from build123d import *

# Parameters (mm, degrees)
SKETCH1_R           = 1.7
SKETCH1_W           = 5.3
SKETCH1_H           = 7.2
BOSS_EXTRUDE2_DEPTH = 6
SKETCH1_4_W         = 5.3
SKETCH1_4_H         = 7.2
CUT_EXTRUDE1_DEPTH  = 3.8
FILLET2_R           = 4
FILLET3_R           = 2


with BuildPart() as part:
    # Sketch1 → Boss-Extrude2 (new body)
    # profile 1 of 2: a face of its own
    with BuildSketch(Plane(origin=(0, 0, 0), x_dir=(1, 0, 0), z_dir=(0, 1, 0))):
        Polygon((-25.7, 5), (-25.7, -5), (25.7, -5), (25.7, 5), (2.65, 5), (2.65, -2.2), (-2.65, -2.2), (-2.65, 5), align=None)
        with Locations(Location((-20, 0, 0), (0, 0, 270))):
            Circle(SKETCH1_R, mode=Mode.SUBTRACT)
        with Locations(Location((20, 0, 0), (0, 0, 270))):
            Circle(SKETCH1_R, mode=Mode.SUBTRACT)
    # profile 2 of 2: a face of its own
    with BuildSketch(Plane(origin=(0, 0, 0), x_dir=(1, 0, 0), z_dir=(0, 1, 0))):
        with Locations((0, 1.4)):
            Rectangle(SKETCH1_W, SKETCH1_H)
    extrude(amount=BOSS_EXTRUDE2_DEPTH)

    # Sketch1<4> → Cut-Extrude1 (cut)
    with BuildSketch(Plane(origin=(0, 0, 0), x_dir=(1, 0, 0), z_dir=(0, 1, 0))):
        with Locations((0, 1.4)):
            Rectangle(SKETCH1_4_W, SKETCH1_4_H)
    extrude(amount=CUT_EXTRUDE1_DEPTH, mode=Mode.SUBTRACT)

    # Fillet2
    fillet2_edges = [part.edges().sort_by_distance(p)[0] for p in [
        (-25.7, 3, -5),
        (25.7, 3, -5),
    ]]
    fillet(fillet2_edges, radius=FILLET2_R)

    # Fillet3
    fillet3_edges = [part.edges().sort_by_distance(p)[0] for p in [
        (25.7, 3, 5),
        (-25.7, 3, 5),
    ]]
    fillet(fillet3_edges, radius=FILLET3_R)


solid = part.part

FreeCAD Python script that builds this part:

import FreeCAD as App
import Part
import Sketcher


def edges_at(feature, points):
    """Names of the edges that pass closest to the given points."""
    edges = feature.Shape.Edges
    near = lambda p: min(range(len(edges)), key=lambda i: edges[i].distToShape(Part.Vertex(*p))[0])
    return sorted({f"Edge{near(p) + 1}" for p in points})


def add_polygon(sketch, points):
    """Adds a closed chain of lines whose ends are joined by coincident constraints."""
    first, n = sketch.GeometryCount, len(points)
    for a, b in zip(points, points[1:] + points[:1]):
        sketch.addGeometry(Part.LineSegment(App.Vector(*a, 0), App.Vector(*b, 0)), False)
    for i in range(n):
        sketch.addConstraint(Sketcher.Constraint("Coincident", first + i, 2, first + (i + 1) % n, 1))

doc = App.newDocument("Part")
params = doc.addObject("Spreadsheet::Sheet", "Params")
for row, (alias, value) in enumerate([
    ("sketch1_diameter", "3.4 mm"),
    ("sketch1_height", "10 mm"),
    ("sketch1_width", "51.4 mm"),
    ("pad1_length", "6 mm"),
    ("sketch2_width", "5.3 mm"),
    ("sketch2_height", "7.2 mm"),
    ("pocket1_length", "3.8 mm"),
    ("fillet_radius", "4 mm"),
    ("fillet2_radius", "2 mm"),
], start=1):
    params.set(f"A{row}", alias)
    params.set(f"B{row}", "=" + value)
    params.setAlias(f"B{row}", alias)

body = doc.addObject("PartDesign::Body", "Body")

sketch1 = body.newObject("Sketcher::SketchObject", "Sketch")
sketch1.AttachmentSupport = (doc.getObject("XZ_Plane"), [""])
sketch1.MapMode = "FlatFace"
add_polygon(sketch1, [(-25.7, -5), (-25.7, 5), (25.7, 5), (25.7, -5)])
sketch1.addGeometry(Part.Circle(App.Vector(-20, 0, 0), App.Vector(0, 0, 1), 1.7), False)
sketch1.addGeometry(Part.Circle(App.Vector(20, 0, 0), App.Vector(0, 0, 1), 1.7), False)
sketch1.addConstraint(Sketcher.Constraint("Vertical", 0))
sketch1.addConstraint(Sketcher.Constraint("Horizontal", 1))
sketch1.addConstraint(Sketcher.Constraint("Vertical", 2))
sketch1.addConstraint(Sketcher.Constraint("Horizontal", 3))
sketch1.addConstraint(Sketcher.Constraint("Equal", 4, 5))
sketch1.addConstraint(Sketcher.Constraint("Symmetric", 4, 3, 5, 3, -1, 1))
sketch1.addConstraint(Sketcher.Constraint("Symmetric", 0, 2, 2, 2, -1, 1))
sketch1.addConstraint(Sketcher.Constraint("PointOnObject", 4, 3, -1))
sketch1.addConstraint(Sketcher.Constraint("Diameter", 4, 3.4))
sketch1.addConstraint(Sketcher.Constraint("DistanceY", 0, 1, 0, 2, 10.0))
sketch1.addConstraint(Sketcher.Constraint("DistanceX", 1, 1, 1, 2, 51.4))
sketch1.addConstraint(Sketcher.Constraint("DistanceX", 4, 3, -1, 1, 20.0))
sketch1.setExpression("Constraints[12]", "Params.sketch1_diameter")
sketch1.setExpression("Constraints[13]", "Params.sketch1_height")
sketch1.setExpression("Constraints[14]", "Params.sketch1_width")
pad1 = body.newObject("PartDesign::Pad", "Pad")
pad1.Profile = sketch1
pad1.setExpression("Length", "Params.pad1_length")
pad1.Reversed = True

sketch2 = body.newObject("Sketcher::SketchObject", "Sketch001")
sketch2.AttachmentSupport = (doc.getObject("XZ_Plane"), [""])
sketch2.MapMode = "FlatFace"
add_polygon(sketch2, [(-3, -5), (-3, 2), (3, 2), (3, -5)])
sketch2.addConstraint(Sketcher.Constraint("Vertical", 0))
sketch2.addConstraint(Sketcher.Constraint("Horizontal", 1))
sketch2.addConstraint(Sketcher.Constraint("Vertical", 2))
sketch2.addConstraint(Sketcher.Constraint("Horizontal", 3))
sketch2.addConstraint(Sketcher.Constraint("DistanceX", 1, 1, 1, 2, 5.3))
sketch2.addConstraint(Sketcher.Constraint("DistanceY", 0, 1, 0, 2, 7.2))
sketch2.addConstraint(Sketcher.Constraint("DistanceY", 2, 2, -1, 1, 5.0))
sketch2.addConstraint(Sketcher.Constraint("DistanceX", 0, 2, -1, 1, 2.65))
sketch2.setExpression("Constraints[8]", "Params.sketch2_width")
sketch2.setExpression("Constraints[9]", "Params.sketch2_height")
pocket1 = body.newObject("PartDesign::Pocket", "Pocket")
pocket1.Profile = sketch2
pocket1.setExpression("Length", "Params.pocket1_length")
doc.recompute()

fillet = body.newObject("PartDesign::Fillet", "Fillet")
fillet.Base = (pocket1, edges_at(pocket1, [(-25.7, 3, -5), (25.7, 3, -5)]))
fillet.setExpression("Radius", "Params.fillet_radius")
doc.recompute()

fillet2 = body.newObject("PartDesign::Fillet", "Fillet001")
fillet2.Base = (fillet, edges_at(fillet, [(25.7, 3, 5), (-25.7, 3, 5)]))
fillet2.setExpression("Radius", "Params.fillet2_radius")

doc.recompute()
